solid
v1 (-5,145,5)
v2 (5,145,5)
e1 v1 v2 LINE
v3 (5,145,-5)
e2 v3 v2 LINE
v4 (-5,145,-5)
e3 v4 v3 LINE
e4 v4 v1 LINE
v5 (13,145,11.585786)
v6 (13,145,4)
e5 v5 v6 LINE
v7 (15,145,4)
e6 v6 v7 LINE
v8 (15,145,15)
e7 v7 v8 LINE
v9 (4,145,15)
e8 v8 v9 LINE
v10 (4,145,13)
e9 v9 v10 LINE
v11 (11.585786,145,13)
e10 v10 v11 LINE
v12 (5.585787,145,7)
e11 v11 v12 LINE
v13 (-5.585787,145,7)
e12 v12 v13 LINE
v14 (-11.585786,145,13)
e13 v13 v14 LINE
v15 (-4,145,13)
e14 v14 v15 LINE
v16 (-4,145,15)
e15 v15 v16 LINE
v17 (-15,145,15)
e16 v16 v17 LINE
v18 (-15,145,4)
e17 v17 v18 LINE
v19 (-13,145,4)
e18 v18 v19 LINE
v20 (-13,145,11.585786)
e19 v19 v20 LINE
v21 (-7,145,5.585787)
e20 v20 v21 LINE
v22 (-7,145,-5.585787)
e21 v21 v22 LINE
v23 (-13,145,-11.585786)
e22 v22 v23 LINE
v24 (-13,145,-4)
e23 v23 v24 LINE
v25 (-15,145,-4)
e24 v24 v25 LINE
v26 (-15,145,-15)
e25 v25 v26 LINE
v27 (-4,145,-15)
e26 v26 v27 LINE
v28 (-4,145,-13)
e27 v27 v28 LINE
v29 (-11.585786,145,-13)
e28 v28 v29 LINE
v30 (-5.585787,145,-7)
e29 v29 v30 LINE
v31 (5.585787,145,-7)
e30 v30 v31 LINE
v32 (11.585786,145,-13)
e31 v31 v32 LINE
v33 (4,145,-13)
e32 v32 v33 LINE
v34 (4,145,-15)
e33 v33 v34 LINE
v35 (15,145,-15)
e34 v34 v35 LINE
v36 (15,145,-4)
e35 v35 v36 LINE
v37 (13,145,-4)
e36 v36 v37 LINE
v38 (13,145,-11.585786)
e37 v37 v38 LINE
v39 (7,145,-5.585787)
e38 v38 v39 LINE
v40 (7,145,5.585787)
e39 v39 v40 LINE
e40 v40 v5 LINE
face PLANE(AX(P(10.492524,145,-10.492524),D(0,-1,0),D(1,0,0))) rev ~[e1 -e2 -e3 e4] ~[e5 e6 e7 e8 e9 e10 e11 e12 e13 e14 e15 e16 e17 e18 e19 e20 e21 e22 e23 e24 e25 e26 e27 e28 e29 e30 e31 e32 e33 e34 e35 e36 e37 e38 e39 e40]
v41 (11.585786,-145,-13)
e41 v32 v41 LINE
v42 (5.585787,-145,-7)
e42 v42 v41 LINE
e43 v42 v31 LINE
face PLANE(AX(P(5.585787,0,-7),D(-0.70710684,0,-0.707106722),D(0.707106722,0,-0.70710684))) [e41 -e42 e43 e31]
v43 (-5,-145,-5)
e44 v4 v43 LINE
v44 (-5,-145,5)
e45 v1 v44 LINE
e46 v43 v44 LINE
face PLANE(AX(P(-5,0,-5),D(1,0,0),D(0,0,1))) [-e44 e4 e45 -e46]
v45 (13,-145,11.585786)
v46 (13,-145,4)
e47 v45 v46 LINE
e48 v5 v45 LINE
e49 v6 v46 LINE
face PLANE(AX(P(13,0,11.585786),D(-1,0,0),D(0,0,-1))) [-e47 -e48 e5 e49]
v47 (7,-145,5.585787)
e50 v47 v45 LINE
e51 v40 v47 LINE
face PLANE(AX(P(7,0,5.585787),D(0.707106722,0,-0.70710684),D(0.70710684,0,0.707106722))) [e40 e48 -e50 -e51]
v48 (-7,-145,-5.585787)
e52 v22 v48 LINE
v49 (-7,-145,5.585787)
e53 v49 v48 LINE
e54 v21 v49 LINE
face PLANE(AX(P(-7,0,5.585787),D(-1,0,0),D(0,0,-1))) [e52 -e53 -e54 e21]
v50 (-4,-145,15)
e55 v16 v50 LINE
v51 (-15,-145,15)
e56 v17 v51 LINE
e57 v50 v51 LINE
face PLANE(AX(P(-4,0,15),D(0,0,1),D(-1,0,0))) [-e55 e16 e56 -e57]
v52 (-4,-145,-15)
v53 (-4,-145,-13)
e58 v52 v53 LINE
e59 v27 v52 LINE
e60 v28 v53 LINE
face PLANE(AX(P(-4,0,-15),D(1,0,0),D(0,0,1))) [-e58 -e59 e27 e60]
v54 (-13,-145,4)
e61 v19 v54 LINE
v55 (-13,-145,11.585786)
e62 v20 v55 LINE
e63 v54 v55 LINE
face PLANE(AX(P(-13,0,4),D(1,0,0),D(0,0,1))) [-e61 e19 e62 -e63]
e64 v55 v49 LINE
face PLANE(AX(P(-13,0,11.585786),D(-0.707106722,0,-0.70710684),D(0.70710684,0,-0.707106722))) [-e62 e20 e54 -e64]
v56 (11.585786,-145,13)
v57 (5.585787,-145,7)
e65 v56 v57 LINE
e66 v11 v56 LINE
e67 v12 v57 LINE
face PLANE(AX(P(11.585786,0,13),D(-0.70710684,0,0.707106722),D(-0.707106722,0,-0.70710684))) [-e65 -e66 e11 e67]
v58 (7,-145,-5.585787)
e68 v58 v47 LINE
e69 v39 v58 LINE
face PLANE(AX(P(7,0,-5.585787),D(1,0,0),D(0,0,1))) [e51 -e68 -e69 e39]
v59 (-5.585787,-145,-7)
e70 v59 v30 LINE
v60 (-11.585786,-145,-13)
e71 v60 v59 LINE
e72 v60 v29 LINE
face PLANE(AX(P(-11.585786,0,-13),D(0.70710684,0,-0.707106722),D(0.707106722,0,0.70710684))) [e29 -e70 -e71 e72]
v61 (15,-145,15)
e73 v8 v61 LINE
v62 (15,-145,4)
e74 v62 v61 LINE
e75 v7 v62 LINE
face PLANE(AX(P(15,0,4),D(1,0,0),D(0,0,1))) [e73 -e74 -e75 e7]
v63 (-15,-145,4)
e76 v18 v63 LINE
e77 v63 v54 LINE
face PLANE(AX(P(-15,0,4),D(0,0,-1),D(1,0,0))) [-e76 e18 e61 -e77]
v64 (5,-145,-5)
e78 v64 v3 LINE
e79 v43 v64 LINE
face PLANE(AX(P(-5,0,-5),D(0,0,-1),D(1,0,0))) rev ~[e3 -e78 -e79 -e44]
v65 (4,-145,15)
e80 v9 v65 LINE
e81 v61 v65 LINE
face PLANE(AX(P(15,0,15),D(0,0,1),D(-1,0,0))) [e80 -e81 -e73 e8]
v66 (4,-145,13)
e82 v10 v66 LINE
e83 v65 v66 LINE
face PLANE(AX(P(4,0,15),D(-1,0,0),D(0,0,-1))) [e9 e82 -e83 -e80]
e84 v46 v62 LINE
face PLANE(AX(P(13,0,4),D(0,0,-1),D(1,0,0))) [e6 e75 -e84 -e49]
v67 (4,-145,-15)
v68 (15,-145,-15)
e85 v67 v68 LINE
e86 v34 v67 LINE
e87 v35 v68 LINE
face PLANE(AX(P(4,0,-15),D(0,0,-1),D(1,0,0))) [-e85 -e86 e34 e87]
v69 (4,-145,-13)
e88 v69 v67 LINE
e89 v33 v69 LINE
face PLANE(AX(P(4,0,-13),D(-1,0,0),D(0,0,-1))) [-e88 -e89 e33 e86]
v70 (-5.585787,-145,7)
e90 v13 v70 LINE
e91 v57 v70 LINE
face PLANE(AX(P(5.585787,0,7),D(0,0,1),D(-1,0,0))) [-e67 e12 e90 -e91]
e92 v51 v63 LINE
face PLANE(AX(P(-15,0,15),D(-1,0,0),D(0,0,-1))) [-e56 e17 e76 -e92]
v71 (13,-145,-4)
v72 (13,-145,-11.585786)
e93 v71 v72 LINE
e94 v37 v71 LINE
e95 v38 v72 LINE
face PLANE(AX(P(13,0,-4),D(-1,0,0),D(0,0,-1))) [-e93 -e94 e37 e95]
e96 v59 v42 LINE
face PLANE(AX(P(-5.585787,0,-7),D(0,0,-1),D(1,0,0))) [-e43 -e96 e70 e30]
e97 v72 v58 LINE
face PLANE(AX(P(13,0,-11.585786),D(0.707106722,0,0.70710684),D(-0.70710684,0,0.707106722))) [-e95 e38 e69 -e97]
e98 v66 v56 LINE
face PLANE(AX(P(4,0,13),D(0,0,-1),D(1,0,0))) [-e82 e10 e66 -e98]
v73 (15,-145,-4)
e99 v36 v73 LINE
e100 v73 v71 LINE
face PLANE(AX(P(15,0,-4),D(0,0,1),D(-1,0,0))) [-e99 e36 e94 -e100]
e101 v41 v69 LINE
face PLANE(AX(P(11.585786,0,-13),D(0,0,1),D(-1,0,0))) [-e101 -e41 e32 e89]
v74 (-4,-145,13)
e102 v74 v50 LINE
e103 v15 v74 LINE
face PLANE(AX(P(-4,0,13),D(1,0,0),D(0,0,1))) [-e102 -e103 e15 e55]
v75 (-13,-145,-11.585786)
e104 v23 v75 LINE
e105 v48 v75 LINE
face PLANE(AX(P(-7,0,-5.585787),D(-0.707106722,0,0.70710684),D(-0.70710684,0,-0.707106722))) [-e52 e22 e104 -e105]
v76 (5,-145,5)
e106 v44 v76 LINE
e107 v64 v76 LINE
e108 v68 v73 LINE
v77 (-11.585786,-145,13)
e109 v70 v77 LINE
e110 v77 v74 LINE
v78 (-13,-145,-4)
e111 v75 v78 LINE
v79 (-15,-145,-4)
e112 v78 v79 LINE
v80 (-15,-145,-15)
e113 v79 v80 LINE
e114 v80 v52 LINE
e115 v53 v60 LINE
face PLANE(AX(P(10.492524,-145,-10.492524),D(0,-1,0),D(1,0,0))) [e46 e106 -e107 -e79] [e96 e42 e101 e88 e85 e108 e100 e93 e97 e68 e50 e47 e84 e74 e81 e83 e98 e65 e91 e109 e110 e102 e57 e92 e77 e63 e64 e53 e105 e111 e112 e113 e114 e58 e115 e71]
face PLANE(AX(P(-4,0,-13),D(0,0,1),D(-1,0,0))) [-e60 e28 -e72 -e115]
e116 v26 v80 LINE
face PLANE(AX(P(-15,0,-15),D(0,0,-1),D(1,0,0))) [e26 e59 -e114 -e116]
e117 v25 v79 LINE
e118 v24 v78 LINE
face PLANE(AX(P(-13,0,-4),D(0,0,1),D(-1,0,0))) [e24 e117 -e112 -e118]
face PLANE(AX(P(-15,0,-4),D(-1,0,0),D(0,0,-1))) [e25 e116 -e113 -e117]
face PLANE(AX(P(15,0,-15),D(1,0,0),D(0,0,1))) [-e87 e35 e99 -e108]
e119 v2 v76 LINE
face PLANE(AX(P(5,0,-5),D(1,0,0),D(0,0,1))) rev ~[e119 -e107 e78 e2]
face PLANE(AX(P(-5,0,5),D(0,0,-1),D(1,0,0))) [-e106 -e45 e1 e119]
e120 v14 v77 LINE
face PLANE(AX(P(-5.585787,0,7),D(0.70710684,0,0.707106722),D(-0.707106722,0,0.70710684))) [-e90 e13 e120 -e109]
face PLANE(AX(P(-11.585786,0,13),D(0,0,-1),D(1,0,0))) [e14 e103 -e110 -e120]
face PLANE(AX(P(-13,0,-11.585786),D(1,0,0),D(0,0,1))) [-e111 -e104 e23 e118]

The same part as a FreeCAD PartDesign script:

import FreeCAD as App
import Part
import Sketcher

V = App.Vector


def add_polygon(sketch, points):
    """Adds a closed chain of lines whose ends are joined by coincident constraints."""
    first, n = sketch.GeometryCount, len(points)
    for a, b in zip(points, points[1:] + points[:1]):
        sketch.addGeometry(Part.LineSegment(App.Vector(*a, 0), App.Vector(*b, 0)), False)
    for i in range(n):
        sketch.addConstraint(Sketcher.Constraint("Coincident", first + i, 2, first + (i + 1) % n, 1))

doc = App.newDocument("Part")
body = doc.addObject("PartDesign::Body", "Body")

sketch1 = body.newObject("Sketcher::SketchObject", "Sketch")
sketch1.AttachmentSupport = (doc.getObject("XZ_Plane"), [""])
sketch1.MapMode = "FlatFace"
add_polygon(sketch1, [(5.6, -7), (11.6, -13), (4, -13), (4, -15), (15, -15), (15, -4), (13, -4), (13, -11.6), (7, -5.6), (7, 5.6), (13, 11.6), (13, 4), (15, 4), (15, 15), (4, 15), (4, 13), (11.6, 13), (5.6, 7), (-5.6, 7), (-11.6, 13), (-4, 13), (-4, 15), (-15, 15), (-15, 4), (-13, 4), (-13, 11.6), (-7, 5.6), (-7, -5.6), (-13, -11.6), (-13, -4), (-15, -4), (-15, -15), (-4, -15), (-4, -13), (-11.6, -13), (-5.6, -7)])
add_polygon(sketch1, [(5, -5), (-5, -5), (-5, 5), (5, 5)])
sketch1.addConstraint(Sketcher.Constraint("Horizontal", 1))
sketch1.addConstraint(Sketcher.Constraint("Vertical", 2))
sketch1.addConstraint(Sketcher.Constraint("Horizontal", 3))
sketch1.addConstraint(Sketcher.Constraint("Vertical", 4))
sketch1.addConstraint(Sketcher.Constraint("Horizontal", 5))
sketch1.addConstraint(Sketcher.Constraint("Vertical", 6))
sketch1.addConstraint(Sketcher.Constraint("Vertical", 8))
sketch1.addConstraint(Sketcher.Constraint("Vertical", 10))
sketch1.addConstraint(Sketcher.Constraint("Horizontal", 11))
sketch1.addConstraint(Sketcher.Constraint("Vertical", 12))
sketch1.addConstraint(Sketcher.Constraint("Horizontal", 13))
sketch1.addConstraint(Sketcher.Constraint("Vertical", 14))
sketch1.addConstraint(Sketcher.Constraint("Horizontal", 15))
sketch1.addConstraint(Sketcher.Constraint("Horizontal", 17))
sketch1.addConstraint(Sketcher.Constraint("Horizontal", 19))
sketch1.addConstraint(Sketcher.Constraint("Vertical", 20))
sketch1.addConstraint(Sketcher.Constraint("Horizontal", 21))
sketch1.addConstraint(Sketcher.Constraint("Vertical", 22))
sketch1.addConstraint(Sketcher.Constraint("Horizontal", 23))
sketch1.addConstraint(Sketcher.Constraint("Vertical", 24))
sketch1.addConstraint(Sketcher.Constraint("Vertical", 26))
sketch1.addConstraint(Sketcher.Constraint("Vertical", 28))
sketch1.addConstraint(Sketcher.Constraint("Horizontal", 29))
sketch1.addConstraint(Sketcher.Constraint("Vertical", 30))
sketch1.addConstraint(Sketcher.Constraint("Horizontal", 31))
sketch1.addConstraint(Sketcher.Constraint("Vertical", 32))
sketch1.addConstraint(Sketcher.Constraint("Horizontal", 33))
sketch1.addConstraint(Sketcher.Constraint("Horizontal", 35))
sketch1.addConstraint(Sketcher.Constraint("Horizontal", 36))
sketch1.addConstraint(Sketcher.Constraint("Vertical", 37))
sketch1.addConstraint(Sketcher.Constraint("Horizontal", 38))
sketch1.addConstraint(Sketcher.Constraint("Vertical", 39))
sketch1.addConstraint(Sketcher.Constraint("Symmetric", 0, 2, 18, 2, -1, 1))
sketch1.addConstraint(Sketcher.Constraint("Symmetric", 2, 2, 20, 2, -1, 1))
sketch1.addConstraint(Sketcher.Constraint("Symmetric", 4, 2, 22, 2, -1, 1))
sketch1.addConstraint(Sketcher.Constraint("Symmetric", 6, 2, 24, 2, -1, 1))
sketch1.addConstraint(Sketcher.Constraint("Symmetric", 7, 2, 25, 2, -1, 1))
sketch1.addConstraint(Sketcher.Constraint("Symmetric", 9, 2, 27, 2, -1, 1))
sketch1.addConstraint(Sketcher.Constraint("Symmetric", 11, 2, 29, 2, -1, 1))
sketch1.addConstraint(Sketcher.Constraint("Symmetric", 13, 2, 31, 2, -1, 1))
sketch1.addConstraint(Sketcher.Constraint("Symmetric", 15, 2, 33, 2, -1, 1))
sketch1.addConstraint(Sketcher.Constraint("Symmetric", 16, 2, 34, 2, -1, 1))
sketch1.addConstraint(Sketcher.Constraint("Symmetric", 36, 2, 38, 2, -1, 1))
sketch1.addConstraint(Sketcher.Constraint("Symmetric", 15, 2, 18, 2, -2))
sketch1.addConstraint(Sketcher.Constraint("Symmetric", 13, 2, 20, 2, -2))
sketch1.addConstraint(Sketcher.Constraint("Symmetric", 11, 2, 22, 2, -2))
sketch1.addConstraint(Sketcher.Constraint("Symmetric", 9, 2, 24, 2, -2))
sketch1.addConstraint(Sketcher.Constraint("Parallel", 0, 7))
sketch1.addConstraint(Sketcher.Constraint("Perpendicular", 7, 9))
sketch1.addConstraint(Sketcher.Constraint("Parallel", 9, 16))
sketch1.addConstraint(Sketcher.Constraint("Perpendicular", 16, 18))
sketch1.addConstraint(Sketcher.Constraint("Perpendicular", 25, 27))
sketch1.addConstraint(Sketcher.Constraint("Horizontal", 8, 2, 25, 2))
sketch1.addConstraint(Sketcher.Constraint("Equal", 29, 2))
sketch1.addConstraint(Sketcher.Constraint("Equal", 31, 4))
sketch1.addConstraint(Sketcher.Constraint("Equal", 33, 6))
sketch1.addConstraint(Sketcher.Constraint("Equal", 35, 8))
sketch1.addConstraint(Sketcher.Constraint("Equal", 38, 37))
sketch1.addConstraint(Sketcher.Constraint("Equal", 0, 7))
sketch1.addConstraint(Sketcher.Constraint("DistanceX", 3, 1, 3, 2, 11.0))
sketch1.addConstraint(Sketcher.Constraint("DistanceX", 5, 2, 5, 1, 2.0))
sketch1.addConstraint(Sketcher.Constraint("DistanceX", 36, 2, 36, 1, 10.0))
sketch1.addConstraint(Sketcher.Constraint("DistanceY", 0, 2, -1, 1, 13.0))
sketch1.addConstraint(Sketcher.Constraint("DistanceX", -1, 1, 7, 2, 7.0))
sketch1.addConstraint(Sketcher.Constraint("DistanceX", 1, 2, 1, 1, 7.585786))
pad1 = body.newObject("PartDesign::Pad", "Pad")
pad1.Profile = sketch1
pad1.Length = 290
pad1.Midplane = True

doc.recompute()
